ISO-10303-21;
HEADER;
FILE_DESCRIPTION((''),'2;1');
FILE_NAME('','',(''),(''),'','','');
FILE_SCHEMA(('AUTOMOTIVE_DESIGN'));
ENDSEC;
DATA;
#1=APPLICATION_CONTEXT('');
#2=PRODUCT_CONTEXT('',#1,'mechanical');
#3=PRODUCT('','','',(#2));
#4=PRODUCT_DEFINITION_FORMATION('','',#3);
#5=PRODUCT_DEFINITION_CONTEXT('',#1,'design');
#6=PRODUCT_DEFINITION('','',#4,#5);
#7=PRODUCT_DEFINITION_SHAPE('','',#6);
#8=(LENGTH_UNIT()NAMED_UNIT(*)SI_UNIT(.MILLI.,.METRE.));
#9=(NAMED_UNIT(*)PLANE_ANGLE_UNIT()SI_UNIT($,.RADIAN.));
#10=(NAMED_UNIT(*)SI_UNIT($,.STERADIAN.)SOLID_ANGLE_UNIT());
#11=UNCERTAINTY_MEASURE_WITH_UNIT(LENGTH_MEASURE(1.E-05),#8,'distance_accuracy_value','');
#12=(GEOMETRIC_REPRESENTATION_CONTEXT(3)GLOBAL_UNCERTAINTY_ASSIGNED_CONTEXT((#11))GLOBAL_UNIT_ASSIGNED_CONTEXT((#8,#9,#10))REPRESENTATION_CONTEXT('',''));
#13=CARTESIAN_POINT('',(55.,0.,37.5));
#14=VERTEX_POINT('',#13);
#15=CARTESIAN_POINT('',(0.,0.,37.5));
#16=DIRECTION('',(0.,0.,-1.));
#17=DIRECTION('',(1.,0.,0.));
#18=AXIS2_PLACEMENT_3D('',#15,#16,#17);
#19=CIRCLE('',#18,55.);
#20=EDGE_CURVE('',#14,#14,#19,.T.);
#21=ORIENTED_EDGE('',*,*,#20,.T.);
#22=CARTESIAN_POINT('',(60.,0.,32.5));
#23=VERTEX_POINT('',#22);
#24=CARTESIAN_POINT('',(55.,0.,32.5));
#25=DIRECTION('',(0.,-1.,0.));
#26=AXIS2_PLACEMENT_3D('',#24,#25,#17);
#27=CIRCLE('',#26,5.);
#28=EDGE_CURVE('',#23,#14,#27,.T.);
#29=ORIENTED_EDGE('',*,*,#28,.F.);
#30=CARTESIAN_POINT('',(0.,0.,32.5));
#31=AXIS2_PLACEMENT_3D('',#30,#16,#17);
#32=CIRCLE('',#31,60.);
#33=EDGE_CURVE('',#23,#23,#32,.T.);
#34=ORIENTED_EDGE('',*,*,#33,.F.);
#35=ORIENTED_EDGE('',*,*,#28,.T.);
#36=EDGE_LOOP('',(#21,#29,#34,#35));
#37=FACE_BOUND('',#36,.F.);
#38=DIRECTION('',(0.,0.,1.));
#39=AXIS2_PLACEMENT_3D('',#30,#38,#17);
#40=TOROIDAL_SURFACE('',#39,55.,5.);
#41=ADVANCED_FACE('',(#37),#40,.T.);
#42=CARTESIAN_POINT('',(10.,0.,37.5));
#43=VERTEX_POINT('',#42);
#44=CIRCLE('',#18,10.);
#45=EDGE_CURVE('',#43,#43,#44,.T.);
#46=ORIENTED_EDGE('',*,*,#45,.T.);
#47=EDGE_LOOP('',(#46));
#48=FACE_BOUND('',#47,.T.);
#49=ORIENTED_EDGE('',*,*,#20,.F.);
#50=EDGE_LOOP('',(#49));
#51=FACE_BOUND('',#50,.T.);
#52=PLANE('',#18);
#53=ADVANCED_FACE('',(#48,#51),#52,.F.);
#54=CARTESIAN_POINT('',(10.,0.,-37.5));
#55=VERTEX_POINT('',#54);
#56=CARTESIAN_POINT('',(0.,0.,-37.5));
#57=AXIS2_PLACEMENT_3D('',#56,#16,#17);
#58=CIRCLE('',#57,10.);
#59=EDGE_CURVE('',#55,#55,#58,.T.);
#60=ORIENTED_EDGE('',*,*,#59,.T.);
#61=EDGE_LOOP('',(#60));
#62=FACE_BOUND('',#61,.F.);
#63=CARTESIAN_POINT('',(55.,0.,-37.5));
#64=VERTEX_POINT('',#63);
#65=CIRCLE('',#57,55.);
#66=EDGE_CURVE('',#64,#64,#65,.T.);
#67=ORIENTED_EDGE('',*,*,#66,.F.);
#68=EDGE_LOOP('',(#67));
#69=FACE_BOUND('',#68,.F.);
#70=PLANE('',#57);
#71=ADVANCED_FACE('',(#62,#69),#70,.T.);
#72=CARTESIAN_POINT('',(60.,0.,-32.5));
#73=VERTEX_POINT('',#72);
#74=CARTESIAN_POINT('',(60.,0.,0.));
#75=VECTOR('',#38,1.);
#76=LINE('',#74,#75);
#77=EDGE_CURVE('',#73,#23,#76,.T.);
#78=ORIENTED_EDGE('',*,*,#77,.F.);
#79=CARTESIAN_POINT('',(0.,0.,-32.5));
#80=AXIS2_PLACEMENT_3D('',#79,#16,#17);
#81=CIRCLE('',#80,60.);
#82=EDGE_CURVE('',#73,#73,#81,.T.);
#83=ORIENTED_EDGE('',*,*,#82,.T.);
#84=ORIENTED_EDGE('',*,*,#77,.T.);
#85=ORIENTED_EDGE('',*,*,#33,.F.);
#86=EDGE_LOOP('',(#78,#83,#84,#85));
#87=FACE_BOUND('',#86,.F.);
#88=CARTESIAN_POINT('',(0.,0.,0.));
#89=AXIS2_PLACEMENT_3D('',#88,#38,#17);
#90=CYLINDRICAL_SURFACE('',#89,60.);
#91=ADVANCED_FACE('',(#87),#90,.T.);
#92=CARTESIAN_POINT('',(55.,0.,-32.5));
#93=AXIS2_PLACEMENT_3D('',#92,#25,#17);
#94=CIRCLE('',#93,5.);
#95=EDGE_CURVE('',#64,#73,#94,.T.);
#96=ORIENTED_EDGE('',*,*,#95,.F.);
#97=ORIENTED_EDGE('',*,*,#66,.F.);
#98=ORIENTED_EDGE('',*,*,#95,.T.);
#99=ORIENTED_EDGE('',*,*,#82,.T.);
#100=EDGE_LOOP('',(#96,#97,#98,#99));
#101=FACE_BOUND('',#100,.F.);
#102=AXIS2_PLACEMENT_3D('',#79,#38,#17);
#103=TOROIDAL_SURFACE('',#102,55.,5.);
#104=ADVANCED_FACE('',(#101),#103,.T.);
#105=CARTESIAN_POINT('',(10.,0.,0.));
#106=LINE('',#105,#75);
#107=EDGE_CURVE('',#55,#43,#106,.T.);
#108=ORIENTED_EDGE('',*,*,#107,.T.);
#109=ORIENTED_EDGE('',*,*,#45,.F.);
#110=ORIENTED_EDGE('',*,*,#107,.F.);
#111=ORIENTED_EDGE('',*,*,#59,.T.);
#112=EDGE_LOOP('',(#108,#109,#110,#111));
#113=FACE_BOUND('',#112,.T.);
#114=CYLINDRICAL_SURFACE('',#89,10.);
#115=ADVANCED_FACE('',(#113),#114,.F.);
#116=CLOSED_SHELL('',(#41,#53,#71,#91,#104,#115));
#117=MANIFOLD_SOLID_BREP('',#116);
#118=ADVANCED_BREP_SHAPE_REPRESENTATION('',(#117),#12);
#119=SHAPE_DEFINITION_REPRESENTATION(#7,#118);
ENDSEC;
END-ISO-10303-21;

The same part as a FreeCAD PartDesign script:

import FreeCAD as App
import Part
import Sketcher


def edges_at(feature, points):
    """Names of the edges that pass closest to the given points."""
    edges = feature.Shape.Edges
    near = lambda p: min(range(len(edges)), key=lambda i: edges[i].distToShape(Part.Vertex(*p))[0])
    return sorted({f"Edge{near(p) + 1}" for p in points})


def add_polygon(sketch, points):
    """Adds a closed chain of lines whose ends are joined by coincident constraints."""
    first, n = sketch.GeometryCount, len(points)
    for a, b in zip(points, points[1:] + points[:1]):
        sketch.addGeometry(Part.LineSegment(App.Vector(*a, 0), App.Vector(*b, 0)), False)
    for i in range(n):
        sketch.addConstraint(Sketcher.Constraint("Coincident", first + i, 2, first + (i + 1) % n, 1))

doc = App.newDocument("Part")
params = doc.addObject("Spreadsheet::Sheet", "Params")
for row, (alias, value) in enumerate([
    ("sketch1_width", "50 mm"),
    ("sketch1_height", "75 mm"),
    ("revolution_angle", "360 deg"),
    ("fillet_radius", "5 mm"),
], start=1):
    params.set(f"A{row}", alias)
    params.set(f"B{row}", "=" + value)
    params.setAlias(f"B{row}", alias)

body = doc.addObject("PartDesign::Body", "Body")

sketch1 = doc.addObject("Sketcher::SketchObject", "Sketch")
body.addObject(sketch1)
sketch1.AttachmentSupport = (doc.XZ_Plane, [""])
sketch1.MapMode = "FlatFace"
add_polygon(sketch1, [(10, 38), (10, -38), (60, -38), (60, 38)])
sketch1.addConstraint(Sketcher.Constraint("Vertical", 0))
sketch1.addConstraint(Sketcher.Constraint("Horizontal", 1))
sketch1.addConstraint(Sketcher.Constraint("Vertical", 2))
sketch1.addConstraint(Sketcher.Constraint("Horizontal", 3))
sketch1.addConstraint(Sketcher.Constraint("DistanceX", 1, 1, 1, 2, 50.0))
sketch1.addConstraint(Sketcher.Constraint("DistanceY", 0, 2, 0, 1, 75.0))
sketch1.addConstraint(Sketcher.Constraint("DistanceX", -1, 1, 0, 2, 10.0))
sketch1.addConstraint(Sketcher.Constraint("DistanceY", 0, 2, -1, 1, 37.5))
sketch1.setExpression("Constraints[8]", "Params.sketch1_width")
sketch1.setExpression("Constraints[9]", "Params.sketch1_height")
revolution = doc.addObject("PartDesign::Revolution", "Revolution")
body.addObject(revolution)
revolution.Profile = sketch1
revolution.ReferenceAxis = (sketch1, ["V_Axis"])
revolution.setExpression("Angle", "Params.revolution_angle")
doc.recompute()

fillet = doc.addObject("PartDesign::Fillet", "Fillet")
body.addObject(fillet)
fillet.Base = (revolution, edges_at(revolution, [(-60, 0, 37.5), (-60, 0, -37.5)]))
fillet.setExpression("Radius", "Params.fillet_radius")

doc.recompute()
